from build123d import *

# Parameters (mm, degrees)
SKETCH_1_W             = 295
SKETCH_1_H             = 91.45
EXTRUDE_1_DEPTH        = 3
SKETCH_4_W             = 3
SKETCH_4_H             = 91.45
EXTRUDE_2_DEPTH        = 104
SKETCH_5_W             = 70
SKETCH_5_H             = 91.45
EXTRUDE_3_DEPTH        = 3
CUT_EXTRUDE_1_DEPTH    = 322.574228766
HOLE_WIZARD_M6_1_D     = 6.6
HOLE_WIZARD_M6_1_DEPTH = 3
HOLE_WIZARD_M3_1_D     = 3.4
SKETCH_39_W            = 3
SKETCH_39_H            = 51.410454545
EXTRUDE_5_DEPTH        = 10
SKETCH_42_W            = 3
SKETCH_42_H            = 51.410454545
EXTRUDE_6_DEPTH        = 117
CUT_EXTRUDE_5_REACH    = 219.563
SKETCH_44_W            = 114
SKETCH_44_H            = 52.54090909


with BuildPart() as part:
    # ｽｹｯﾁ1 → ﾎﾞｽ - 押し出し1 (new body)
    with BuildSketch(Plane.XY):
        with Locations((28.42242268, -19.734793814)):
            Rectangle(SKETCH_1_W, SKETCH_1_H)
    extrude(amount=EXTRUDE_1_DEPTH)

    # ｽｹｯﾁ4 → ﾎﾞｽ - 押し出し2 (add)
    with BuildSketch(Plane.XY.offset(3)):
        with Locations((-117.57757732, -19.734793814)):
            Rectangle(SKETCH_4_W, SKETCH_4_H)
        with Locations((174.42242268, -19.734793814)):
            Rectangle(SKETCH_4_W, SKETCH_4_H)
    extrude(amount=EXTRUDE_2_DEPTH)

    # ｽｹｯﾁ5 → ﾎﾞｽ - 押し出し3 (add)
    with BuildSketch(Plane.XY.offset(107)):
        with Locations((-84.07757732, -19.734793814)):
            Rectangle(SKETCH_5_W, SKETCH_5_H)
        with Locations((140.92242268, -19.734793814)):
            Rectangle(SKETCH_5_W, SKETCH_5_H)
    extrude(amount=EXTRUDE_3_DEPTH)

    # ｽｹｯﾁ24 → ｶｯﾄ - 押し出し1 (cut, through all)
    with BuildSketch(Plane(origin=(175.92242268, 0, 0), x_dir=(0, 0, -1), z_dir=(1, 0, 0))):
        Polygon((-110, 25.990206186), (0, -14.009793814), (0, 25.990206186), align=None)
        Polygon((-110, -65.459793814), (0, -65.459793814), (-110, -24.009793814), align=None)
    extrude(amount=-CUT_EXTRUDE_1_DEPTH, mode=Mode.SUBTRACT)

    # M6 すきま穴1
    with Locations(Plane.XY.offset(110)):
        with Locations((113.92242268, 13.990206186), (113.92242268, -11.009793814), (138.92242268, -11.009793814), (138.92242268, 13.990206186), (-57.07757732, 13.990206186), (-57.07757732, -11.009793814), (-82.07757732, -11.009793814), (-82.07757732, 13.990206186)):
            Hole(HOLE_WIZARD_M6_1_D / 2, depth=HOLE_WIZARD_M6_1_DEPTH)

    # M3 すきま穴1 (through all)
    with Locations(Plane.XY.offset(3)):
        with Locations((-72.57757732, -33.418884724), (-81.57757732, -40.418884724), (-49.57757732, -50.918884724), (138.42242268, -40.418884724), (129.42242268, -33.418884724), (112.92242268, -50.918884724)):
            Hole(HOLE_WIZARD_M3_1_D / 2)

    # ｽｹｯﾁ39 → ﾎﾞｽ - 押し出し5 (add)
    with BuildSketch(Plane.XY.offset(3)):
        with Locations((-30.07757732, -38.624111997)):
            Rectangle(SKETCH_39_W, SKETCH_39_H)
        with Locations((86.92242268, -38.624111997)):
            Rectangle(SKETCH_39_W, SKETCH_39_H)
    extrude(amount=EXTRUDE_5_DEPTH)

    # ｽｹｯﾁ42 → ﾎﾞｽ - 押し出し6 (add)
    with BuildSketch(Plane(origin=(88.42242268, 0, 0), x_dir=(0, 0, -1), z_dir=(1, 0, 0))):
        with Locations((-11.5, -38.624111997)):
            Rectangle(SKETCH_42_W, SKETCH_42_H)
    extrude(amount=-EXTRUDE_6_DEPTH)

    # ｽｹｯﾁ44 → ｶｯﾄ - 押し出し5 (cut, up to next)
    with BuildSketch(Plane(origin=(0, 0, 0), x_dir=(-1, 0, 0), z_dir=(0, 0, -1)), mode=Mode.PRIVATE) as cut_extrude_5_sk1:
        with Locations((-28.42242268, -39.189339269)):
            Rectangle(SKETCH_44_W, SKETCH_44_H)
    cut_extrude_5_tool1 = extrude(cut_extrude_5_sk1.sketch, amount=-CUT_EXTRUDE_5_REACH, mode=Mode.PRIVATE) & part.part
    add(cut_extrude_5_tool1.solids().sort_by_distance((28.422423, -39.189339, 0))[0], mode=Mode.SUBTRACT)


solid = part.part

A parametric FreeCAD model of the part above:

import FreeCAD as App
import Part
import Sketcher
from FreeCAD import Vector
Q = App.Units.Quantity

doc = App.newDocument("Part")
body = doc.addObject("PartDesign::Body", "Body")

sketch1 = doc.addObject("Sketcher::SketchObject", "Sketch")
body.addObject(sketch1)
sketch1.AttachmentSupport = (doc.XY_Plane, [""])
sketch1.MapMode = "FlatFace"
sketch1.addGeometry(Part.LineSegment(Vector(-119, 26, 0), Vector(-119, -65, 0)), False)
sketch1.addGeometry(Part.LineSegment(Vector(-119, -65, 0), Vector(176, -65, 0)), False)
sketch1.addGeometry(Part.LineSegment(Vector(176, -65, 0), Vector(176, 26, 0)), False)
sketch1.addGeometry(Part.LineSegment(Vector(176, 26, 0), Vector(-119, 26, 0)), False)
sketch1.addConstraint(Sketcher.Constraint("Coincident", 0, 2, 1, 1))
sketch1.addConstraint(Sketcher.Constraint("Coincident", 1, 2, 2, 1))
sketch1.addConstraint(Sketcher.Constraint("Coincident", 2, 2, 3, 1))
sketch1.addConstraint(Sketcher.Constraint("Coincident", 3, 2, 0, 1))
sketch1.addConstraint(Sketcher.Constraint("Vertical", 0))
sketch1.addConstraint(Sketcher.Constraint("Horizontal", 1))
sketch1.addConstraint(Sketcher.Constraint("Vertical", 2))
sketch1.addConstraint(Sketcher.Constraint("Horizontal", 3))
sketch1.addConstraint(Sketcher.Constraint("DistanceX", 1, 1, 1, 2, Q("295 mm")))
sketch1.addConstraint(Sketcher.Constraint("DistanceY", 0, 2, 0, 1, Q("91.45 mm")))
sketch1.addConstraint(Sketcher.Constraint("DistanceX", 0, 2, -1, 1, Q("119.077577 mm")))
sketch1.addConstraint(Sketcher.Constraint("DistanceY", 0, 2, -1, 1, Q("65.459794 mm")))
pad1 = doc.addObject("PartDesign::Pad", "Pad")
body.addObject(pad1)
pad1.Profile = sketch1
pad1.Length = 3

sketch2 = doc.addObject("Sketcher::SketchObject", "Sketch001")
body.addObject(sketch2)
sketch2.AttachmentSupport = (doc.XY_Plane, [""])
sketch2.MapMode = "FlatFace"
sketch2.AttachmentOffset = App.Placement(Vector(0, 0, 3), App.Rotation())
sketch2.addGeometry(Part.LineSegment(Vector(-119.1, 26, 0), Vector(-119.1, -65.5, 0)), False)
sketch2.addGeometry(Part.LineSegment(Vector(-119.1, -65.5, 0), Vector(-116.1, -65.5, 0)), False)
sketch2.addGeometry(Part.LineSegment(Vector(-116.1, -65.5, 0), Vector(-116.1, 26, 0)), False)
sketch2.addGeometry(Part.LineSegment(Vector(-116.1, 26, 0), Vector(-119.1, 26, 0)), False)
sketch2.addGeometry(Part.LineSegment(Vector(172.9, 26, 0), Vector(172.9, -65.5, 0)), False)
sketch2.addGeometry(Part.LineSegment(Vector(172.9, -65.5, 0), Vector(175.9, -65.5, 0)), False)
sketch2.addGeometry(Part.LineSegment(Vector(175.9, -65.5, 0), Vector(175.9, 26, 0)), False)
sketch2.addGeometry(Part.LineSegment(Vector(175.9, 26, 0), Vector(172.9, 26, 0)), False)
sketch2.addConstraint(Sketcher.Constraint("Coincident", 0, 2, 1, 1))
sketch2.addConstraint(Sketcher.Constraint("Coincident", 1, 2, 2, 1))
sketch2.addConstraint(Sketcher.Constraint("Coincident", 2, 2, 3, 1))
sketch2.addConstraint(Sketcher.Constraint("Coincident", 3, 2, 0, 1))
sketch2.addConstraint(Sketcher.Constraint("Coincident", 4, 2, 5, 1))
sketch2.addConstraint(Sketcher.Constraint("Coincident", 5, 2, 6, 1))
sketch2.addConstraint(Sketcher.Constraint("Coincident", 6, 2, 7, 1))
sketch2.addConstraint(Sketcher.Constraint("Coincident", 7, 2, 4, 1))
sketch2.addConstraint(Sketcher.Constraint("Vertical", 0))
sketch2.addConstraint(Sketcher.Constraint("Horizontal", 1))
sketch2.addConstraint(Sketcher.Constraint("Vertical", 2))
sketch2.addConstraint(Sketcher.Constraint("Horizontal", 3))
sketch2.addConstraint(Sketcher.Constraint("Vertical", 4))
sketch2.addConstraint(Sketcher.Constraint("Horizontal", 5))
sketch2.addConstraint(Sketcher.Constraint("Vertical", 6))
sketch2.addConstraint(Sketcher.Constraint("Horizontal", 7))
sketch2.addConstraint(Sketcher.Constraint("Horizontal", 1, 2, 4, 2))
sketch2.addConstraint(Sketcher.Constraint("Horizontal", 3, 2, 6, 2))
sketch2.addConstraint(Sketcher.Constraint("Equal", 3, 5))
sketch2.addConstraint(Sketcher.Constraint("DistanceX", 1, 1, 1, 2, Q("3 mm")))
sketch2.addConstraint(Sketcher.Constraint("DistanceX", 1, 2, 4, 2, Q("289 mm")))
sketch2.addConstraint(Sketcher.Constraint("DistanceY", 0, 2, 0, 1, Q("91.45 mm")))
sketch2.addConstraint(Sketcher.Constraint("DistanceX", 0, 2, -1, 1, Q("119.077577 mm")))
sketch2.addConstraint(Sketcher.Constraint("DistanceY", 0, 2, -1, 1, Q("65.459794 mm")))
pad2 = doc.addObject("PartDesign::Pad", "Pad001")
body.addObject(pad2)
pad2.Profile = sketch2
pad2.Length = 104

sketch3 = doc.addObject("Sketcher::SketchObject", "Sketch002")
body.addObject(sketch3)
sketch3.AttachmentSupport = (doc.XY_Plane, [""])
sketch3.MapMode = "FlatFace"
sketch3.AttachmentOffset = App.Placement(Vector(0, 0, 107), App.Rotation())
sketch3.addGeometry(Part.LineSegment(Vector(-119, 26, 0), Vector(-119, -65, 0)), False)
sketch3.addGeometry(Part.LineSegment(Vector(-119, -65, 0), Vector(-49, -65, 0)), False)
sketch3.addGeometry(Part.LineSegment(Vector(-49, -65, 0), Vector(-49, 26, 0)), False)
sketch3.addGeometry(Part.LineSegment(Vector(-49, 26, 0), Vector(-119, 26, 0)), False)
sketch3.addGeometry(Part.LineSegment(Vector(106, 26, 0), Vector(106, -65, 0)), False)
sketch3.addGeometry(Part.LineSegment(Vector(106, -65, 0), Vector(176, -65, 0)), False)
sketch3.addGeometry(Part.LineSegment(Vector(176, -65, 0), Vector(176, 26, 0)), False)
sketch3.addGeometry(Part.LineSegment(Vector(176, 26, 0), Vector(106, 26, 0)), False)
sketch3.addConstraint(Sketcher.Constraint("Coincident", 0, 2, 1, 1))
sketch3.addConstraint(Sketcher.Constraint("Coincident", 1, 2, 2, 1))
sketch3.addConstraint(Sketcher.Constraint("Coincident", 2, 2, 3, 1))
sketch3.addConstraint(Sketcher.Constraint("Coincident", 3, 2, 0, 1))
sketch3.addConstraint(Sketcher.Constraint("Coincident", 4, 2, 5, 1))
sketch3.addConstraint(Sketcher.Constraint("Coincident", 5, 2, 6, 1))
sketch3.addConstraint(Sketcher.Constraint("Coincident", 6, 2, 7, 1))
sketch3.addConstraint(Sketcher.Constraint("Coincident", 7, 2, 4, 1))
sketch3.addConstraint(Sketcher.Constraint("Vertical", 0))
sketch3.addConstraint(Sketcher.Constraint("Horizontal", 1))
sketch3.addConstraint(Sketcher.Constraint("Vertical", 2))
sketch3.addConstraint(Sketcher.Constraint("Horizontal", 3))
sketch3.addConstraint(Sketcher.Constraint("Vertical", 4))
sketch3.addConstraint(Sketcher.Constraint("Horizontal", 5))
sketch3.addConstraint(Sketcher.Constraint("Vertical", 6))
sketch3.addConstraint(Sketcher.Constraint("Horizontal", 7))
sketch3.addConstraint(Sketcher.Constraint("Horizontal", 1, 2, 4, 2))
sketch3.addConstraint(Sketcher.Constraint("Horizontal", 3, 2, 6, 2))
sketch3.addConstraint(Sketcher.Constraint("Equal", 3, 5))
sketch3.addConstraint(Sketcher.Constraint("DistanceX", 1, 1, 1, 2, Q("70 mm")))
sketch3.addConstraint(Sketcher.Constraint("DistanceX", 1, 2, 4, 2, Q("155 mm")))
sketch3.addConstraint(Sketcher.Constraint("DistanceY", 0, 2, 0, 1, Q("91.45 mm")))
sketch3.addConstraint(Sketcher.Constraint("DistanceX", 0, 2, -1, 1, Q("119.077577 mm")))
sketch3.addConstraint(Sketcher.Constraint("DistanceY", 0, 2, -1, 1, Q("65.459794 mm")))
pad3 = doc.addObject("PartDesign::Pad", "Pad002")
body.addObject(pad3)
pad3.Profile = sketch3
pad3.Length = 3

sketch4 = doc.addObject("Sketcher::SketchObject", "Sketch003")
body.addObject(sketch4)
sketch4.AttachmentSupport = (doc.YZ_Plane, [""])
sketch4.MapMode = "FlatFace"
sketch4.AttachmentOffset = App.Placement(Vector(0, 0, 175.922423), App.Rotation())
sketch4.addGeometry(Part.LineSegment(Vector(26, 110, 0), Vector(-14, 0, 0)), False)
sketch4.addGeometry(Part.LineSegment(Vector(-14, 0, 0), Vector(26, 0, 0)), False)
sketch4.addGeometry(Part.LineSegment(Vector(26, 0, 0), Vector(26, 110, 0)), False)
sketch4.addGeometry(Part.LineSegment(Vector(-65, 110, 0), Vector(-65, 0, 0)), False)
sketch4.addGeometry(Part.LineSegment(Vector(-65, 0, 0), Vector(-24, 110, 0)), False)
sketch4.addGeometry(Part.LineSegment(Vector(-24, 110, 0), Vector(-65, 110, 0)), False)
sketch4.addConstraint(Sketcher.Constraint("Coincident", 0, 2, 1, 1))
sketch4.addConstraint(Sketcher.Constraint("Coincident", 1, 2, 2, 1))
sketch4.addConstraint(Sketcher.Constraint("Coincident", 2, 2, 0, 1))
sketch4.addConstraint(Sketcher.Constraint("Coincident", 3, 2, 4, 1))
sketch4.addConstraint(Sketcher.Constraint("Coincident", 4, 2, 5, 1))
sketch4.addConstraint(Sketcher.Constraint("Coincident", 5, 2, 3, 1))
sketch4.addConstraint(Sketcher.Constraint("Horizontal", 1))
sketch4.addConstraint(Sketcher.Constraint("Vertical", 2))
sketch4.addConstraint(Sketcher.Constraint("Vertical", 3))
sketch4.addConstraint(Sketcher.Constraint("Horizontal", 5))
sketch4.addConstraint(Sketcher.Constraint("PointOnObject", 0, 2, -1))
sketch4.addConstraint(Sketcher.Constraint("PointOnObject", 3, 2, -1))
sketch4.addConstraint(Sketcher.Constraint("Horizontal", 2, 2, 4, 2))
sketch4.addConstraint(Sketcher.Constraint("DistanceX", 1, 1, 1, 2, Q("40 mm")))
sketch4.addConstraint(Sketcher.Constraint("DistanceY", 2, 1, 2, 2, Q("110 mm")))
sketch4.addConstraint(Sketcher.Constraint("DistanceX", 4, 2, 2, 2, Q("50 mm")))
sketch4.addConstraint(Sketcher.Constraint("DistanceX", 5, 2, 5, 1, Q("41.45 mm")))
sketch4.addConstraint(Sketcher.Constraint("DistanceX", 0, 2, -1, 1, Q("14.009794 mm")))
pocket1 = doc.addObject("PartDesign::Pocket", "Pocket")
body.addObject(pocket1)
pocket1.Profile = sketch4
pocket1.Type = "ThroughAll"

sketch5 = doc.addObject("Sketcher::SketchObject", "Sketch004")
body.addObject(sketch5)
sketch5.AttachmentSupport = (doc.XY_Plane, [""])
sketch5.MapMode = "FlatFace"
sketch5.AttachmentOffset = App.Placement(Vector(0, 0, 110), App.Rotation())
sketch5.addGeometry(Part.Circle(Vector(113.9, 14, 0), Vector(0, 0, 1), 3.3), False)
sketch5.addGeometry(Part.Circle(Vector(113.9, -11, 0), Vector(0, 0, 1), 3.3), False)
sketch5.addGeometry(Part.Circle(Vector(138.9, -11, 0), Vector(0, 0, 1), 3.3), False)
sketch5.addGeometry(Part.Circle(Vector(138.9, 14, 0), Vector(0, 0, 1), 3.3), False)
sketch5.addGeometry(Part.Circle(Vector(-57.1, 14, 0), Vector(0, 0, 1), 3.3), False)
sketch5.addGeometry(Part.Circle(Vector(-57.1, -11, 0), Vector(0, 0, 1), 3.3), False)
sketch5.addGeometry(Part.Circle(Vector(-82.1, -11, 0), Vector(0, 0, 1), 3.3), False)
sketch5.addGeometry(Part.Circle(Vector(-82.1, 14, 0), Vector(0, 0, 1), 3.3), False)
sketch5.addConstraint(Sketcher.Constraint("Equal", 0, 1))
sketch5.addConstraint(Sketcher.Constraint("Equal", 1, 2))
sketch5.addConstraint(Sketcher.Constraint("Equal", 2, 3))
sketch5.addConstraint(Sketcher.Constraint("Equal", 3, 4))
sketch5.addConstraint(Sketcher.Constraint("Equal", 4, 5))
sketch5.addConstraint(Sketcher.Constraint("Equal", 5, 6))
sketch5.addConstraint(Sketcher.Constraint("Equal", 6, 7))
sketch5.addConstraint(Sketcher.Constraint("Horizontal", 1, 3, 2, 3))
sketch5.addConstraint(Sketcher.Constraint("Horizontal", 0, 3, 3, 3))
sketch5.addConstraint(Sketcher.Constraint("Horizontal", 3, 3, 4, 3))
sketch5.addConstraint(Sketcher.Constraint("Horizontal", 2, 3, 5, 3))
sketch5.addConstraint(Sketcher.Constraint("Horizontal", 5, 3, 6, 3))
sketch5.addConstraint(Sketcher.Constraint("Horizontal", 4, 3, 7, 3))
sketch5.addConstraint(Sketcher.Constraint("Vertical", 0, 3, 1, 3))
sketch5.addConstraint(Sketcher.Constraint("Vertical", 2, 3, 3, 3))
sketch5.addConstraint(Sketcher.Constraint("Vertical", 4, 3, 5, 3))
sketch5.addConstraint(Sketcher.Constraint("Vertical", 6, 3, 7, 3))
sketch5.addConstraint(Sketcher.Constraint("Diameter", 0, Q("6.6 mm")))
sketch5.addConstraint(Sketcher.Constraint("DistanceY", 1, 3, 0, 3, Q("25 mm")))
sketch5.addConstraint(Sketcher.Constraint("DistanceX", 1, 3, 2, 3, Q("25 mm")))
sketch5.addConstraint(Sketcher.Constraint("DistanceX", 4, 3, 0, 3, Q("171 mm")))
sketch5.addConstraint(Sketcher.Constraint("DistanceX", 6, 3, 5, 3, Q("25 mm")))
sketch5.addConstraint(Sketcher.Constraint("DistanceX", -1, 1, 0, 3, Q("113.922423 mm")))
sketch5.addConstraint(Sketcher.Constraint("DistanceY", -1, 1, 0, 3, Q("13.990206 mm")))
doc.recompute()
hole = doc.addObject("PartDesign::Hole", "Hole")
body.addObject(hole)
hole.Profile = sketch5
hole.ThreadType = "None"
hole.Diameter = 6.6
hole.DepthType = "Dimension"
hole.Depth = 3
hole.DrillPoint = "Flat"

sketch6 = doc.addObject("Sketcher::SketchObject", "Sketch005")
body.addObject(sketch6)
sketch6.AttachmentSupport = (doc.XY_Plane, [""])
sketch6.MapMode = "FlatFace"
sketch6.AttachmentOffset = App.Placement(Vector(0, 0, 3), App.Rotation())
sketch6.addGeometry(Part.Circle(Vector(-72.6, -33.4, 0), Vector(0, 0, 1), 1.7), False)
sketch6.addGeometry(Part.Circle(Vector(-81.6, -40.4, 0), Vector(0, 0, 1), 1.7), False)
sketch6.addGeometry(Part.Circle(Vector(-49.6, -50.9, 0), Vector(0, 0, 1), 1.7), False)
sketch6.addGeometry(Part.Circle(Vector(138.4, -40.4, 0), Vector(0, 0, 1), 1.7), False)
sketch6.addGeometry(Part.Circle(Vector(129.4, -33.4, 0), Vector(0, 0, 1), 1.7), False)
sketch6.addGeometry(Part.Circle(Vector(112.9, -50.9, 0), Vector(0, 0, 1), 1.7), False)
sketch6.addConstraint(Sketcher.Constraint("Equal", 0, 1))
sketch6.addConstraint(Sketcher.Constraint("Equal", 1, 2))
sketch6.addConstraint(Sketcher.Constraint("Equal", 2, 3))
sketch6.addConstraint(Sketcher.Constraint("Equal", 3, 4))
sketch6.addConstraint(Sketcher.Constraint("Equal", 4, 5))
sketch6.addConstraint(Sketcher.Constraint("Horizontal", 1, 3, 3, 3))
sketch6.addConstraint(Sketcher.Constraint("Horizontal", 0, 3, 4, 3))
sketch6.addConstraint(Sketcher.Constraint("Horizontal", 2, 3, 5, 3))
sketch6.addConstraint(Sketcher.Constraint("Diameter", 0, Q("3.4 mm")))
sketch6.addConstraint(Sketcher.Constraint("DistanceX", 1, 3, 0, 3, Q("9 mm")))
sketch6.addConstraint(Sketcher.Constraint("DistanceY", 1, 3, 0, 3, Q("7 mm")))
sketch6.addConstraint(Sketcher.Constraint("DistanceX", 0, 3, 2, 3, Q("23 mm")))
sketch6.addConstraint(Sketcher.Constraint("DistanceX", 2, 3, 3, 3, Q("188 mm")))
sketch6.addConstraint(Sketcher.Constraint("DistanceX", 4, 3, 3, 3, Q("9 mm")))
sketch6.addConstraint(Sketcher.Constraint("DistanceY", 2, 3, 0, 3, Q("17.5 mm")))
sketch6.addConstraint(Sketcher.Constraint("DistanceX", 5, 3, 4, 3, Q("16.5 mm")))
sketch6.addConstraint(Sketcher.Constraint("DistanceX", 0, 3, -1, 1, Q("72.577577 mm")))
sketch6.addConstraint(Sketcher.Constraint("DistanceY", 0, 3, -1, 1, Q("33.418885 mm")))
doc.recompute()
hole2 = doc.addObject("PartDesign::Hole", "Hole001")
body.addObject(hole2)
hole2.Profile = sketch6
hole2.ThreadType = "None"
hole2.Diameter = 3.4
hole2.DepthType = "ThroughAll"

sketch7 = doc.addObject("Sketcher::SketchObject", "Sketch006")
body.addObject(sketch7)
sketch7.AttachmentSupport = (doc.XY_Plane, [""])
sketch7.MapMode = "FlatFace"
sketch7.AttachmentOffset = App.Placement(Vector(0, 0, 3), App.Rotation())
sketch7.addGeometry(Part.LineSegment(Vector(-31.6, -12.9, 0), Vector(-31.6, -64.3, 0)), False)
sketch7.addGeometry(Part.LineSegment(Vector(-31.6, -64.3, 0), Vector(-28.6, -64.3, 0)), False)
sketch7.addGeometry(Part.LineSegment(Vector(-28.6, -64.3, 0), Vector(-28.6, -12.9, 0)), False)
sketch7.addGeometry(Part.LineSegment(Vector(-28.6, -12.9, 0), Vector(-31.6, -12.9, 0)), False)
sketch7.addGeometry(Part.LineSegment(Vector(85.4, -12.9, 0), Vector(85.4, -64.3, 0)), False)
sketch7.addGeometry(Part.LineSegment(Vector(85.4, -64.3, 0), Vector(88.4, -64.3, 0)), False)
sketch7.addGeometry(Part.LineSegment(Vector(88.4, -64.3, 0), Vector(88.4, -12.9, 0)), False)
sketch7.addGeometry(Part.LineSegment(Vector(88.4, -12.9, 0), Vector(85.4, -12.9, 0)), False)
sketch7.addConstraint(Sketcher.Constraint("Coincident", 0, 2, 1, 1))
sketch7.addConstraint(Sketcher.Constraint("Coincident", 1, 2, 2, 1))
sketch7.addConstraint(Sketcher.Constraint("Coincident", 2, 2, 3, 1))
sketch7.addConstraint(Sketcher.Constraint("Coincident", 3, 2, 0, 1))
sketch7.addConstraint(Sketcher.Constraint("Coincident", 4, 2, 5, 1))
sketch7.addConstraint(Sketcher.Constraint("Coincident", 5, 2, 6, 1))
sketch7.addConstraint(Sketcher.Constraint("Coincident", 6, 2, 7, 1))
sketch7.addConstraint(Sketcher.Constraint("Coincident", 7, 2, 4, 1))
sketch7.addConstraint(Sketcher.Constraint("Vertical", 0))
sketch7.addConstraint(Sketcher.Constraint("Horizontal", 1))
sketch7.addConstraint(Sketcher.Constraint("Vertical", 2))
sketch7.addConstraint(Sketcher.Constraint("Horizontal", 3))
sketch7.addConstraint(Sketcher.Constraint("Vertical", 4))
sketch7.addConstraint(Sketcher.Constraint("Horizontal", 5))
sketch7.addConstraint(Sketcher.Constraint("Vertical", 6))
sketch7.addConstraint(Sketcher.Constraint("Horizontal", 7))
sketch7.addConstraint(Sketcher.Constraint("Horizontal", 1, 2, 4, 2))
sketch7.addConstraint(Sketcher.Constraint("Horizontal", 3, 2, 6, 2))
sketch7.addConstraint(Sketcher.Constraint("Equal", 3, 5))
sketch7.addConstraint(Sketcher.Constraint("DistanceX", 1, 1, 1, 2, Q("3 mm")))
sketch7.addConstraint(Sketcher.Constraint("DistanceX", 1, 2, 4, 2, Q("114 mm")))
sketch7.addConstraint(Sketcher.Constraint("DistanceY", 0, 2, 0, 1, Q("51.410455 mm")))
sketch7.addConstraint(Sketcher.Constraint("DistanceY", 0, 2, -1, 1, Q("64.329339 mm")))
sketch7.addConstraint(Sketcher.Constraint("DistanceX", 0, 2, -1, 1, Q("31.577577 mm")))
pad4 = doc.addObject("PartDesign::Pad", "Pad003")
body.addObject(pad4)
pad4.Profile = sketch7
pad4.Length = 10

sketch8 = doc.addObject("Sketcher::SketchObject", "Sketch007")
body.addObject(sketch8)
sketch8.AttachmentSupport = (doc.YZ_Plane, [""])
sketch8.MapMode = "FlatFace"
sketch8.AttachmentOffset = App.Placement(Vector(0, 0, 88.422423), App.Rotation())
sketch8.addGeometry(Part.LineSegment(Vector(-12.9, 13, 0), Vector(-64.3, 13, 0)), False)
sketch8.addGeometry(Part.LineSegment(Vector(-64.3, 13, 0), Vector(-64.3, 10, 0)), False)
sketch8.addGeometry(Part.LineSegment(Vector(-64.3, 10, 0), Vector(-12.9, 10, 0)), False)
sketch8.addGeometry(Part.LineSegment(Vector(-12.9, 10, 0), Vector(-12.9, 13, 0)), False)
sketch8.addConstraint(Sketcher.Constraint("Coincident", 0, 2, 1, 1))
sketch8.addConstraint(Sketcher.Constraint("Coincident", 1, 2, 2, 1))
sketch8.addConstraint(Sketcher.Constraint("Coincident", 2, 2, 3, 1))
sketch8.addConstraint(Sketcher.Constraint("Coincident", 3, 2, 0, 1))
sketch8.addConstraint(Sketcher.Constraint("Horizontal", 0))
sketch8.addConstraint(Sketcher.Constraint("Vertical", 1))
sketch8.addConstraint(Sketcher.Constraint("Horizontal", 2))
sketch8.addConstraint(Sketcher.Constraint("Vertical", 3))
sketch8.addConstraint(Sketcher.Constraint("DistanceY", 1, 2, 1, 1, Q("3 mm")))
sketch8.addConstraint(Sketcher.Constraint("DistanceY", -1, 1, 0, 2, Q("13 mm")))
sketch8.addConstraint(Sketcher.Constraint("DistanceX", 0, 2, 0, 1, Q("51.410455 mm")))
sketch8.addConstraint(Sketcher.Constraint("DistanceX", 0, 2, -1, 1, Q("64.329339 mm")))
pad5 = doc.addObject("PartDesign::Pad", "Pad004")
body.addObject(pad5)
pad5.Profile = sketch8
pad5.Length = 117
pad5.Reversed = True

sketch9 = doc.addObject("Sketcher::SketchObject", "Sketch008")
body.addObject(sketch9)
sketch9.AttachmentSupport = (doc.XY_Plane, [""])
sketch9.MapMode = "FlatFace"
sketch9.addGeometry(Part.LineSegment(Vector(85, -13, 0), Vector(85, -65, 0)), False)
sketch9.addGeometry(Part.LineSegment(Vector(85, -65, 0), Vector(-29, -65, 0)), False)
sketch9.addGeometry(Part.LineSegment(Vector(-29, -65, 0), Vector(-29, -13, 0)), False)
sketch9.addGeometry(Part.LineSegment(Vector(-29, -13, 0), Vector(85, -13, 0)), False)
sketch9.addConstraint(Sketcher.Constraint("Coincident", 0, 2, 1, 1))
sketch9.addConstraint(Sketcher.Constraint("Coincident", 1, 2, 2, 1))
sketch9.addConstraint(Sketcher.Constraint("Coincident", 2, 2, 3, 1))
sketch9.addConstraint(Sketcher.Constraint("Coincident", 3, 2, 0, 1))
sketch9.addConstraint(Sketcher.Constraint("Vertical", 0))
sketch9.addConstraint(Sketcher.Constraint("Horizontal", 1))
sketch9.addConstraint(Sketcher.Constraint("Vertical", 2))
sketch9.addConstraint(Sketcher.Constraint("Horizontal", 3))
sketch9.addConstraint(Sketcher.Constraint("DistanceX", 1, 2, 1, 1, Q("114 mm")))
sketch9.addConstraint(Sketcher.Constraint("DistanceY", 0, 2, 0, 1, Q("52.540909 mm")))
sketch9.addConstraint(Sketcher.Constraint("DistanceX", -1, 1, 0, 2, Q("85.422423 mm")))
sketch9.addConstraint(Sketcher.Constraint("DistanceY", 0, 2, -1, 1, Q("65.459794 mm")))
pocket2 = doc.addObject("PartDesign::Pocket", "Pocket001")
body.addObject(pocket2)
pocket2.Profile = sketch9
pocket2.Type = "UpToFirst"
pocket2.Reversed = True

doc.recompute()
